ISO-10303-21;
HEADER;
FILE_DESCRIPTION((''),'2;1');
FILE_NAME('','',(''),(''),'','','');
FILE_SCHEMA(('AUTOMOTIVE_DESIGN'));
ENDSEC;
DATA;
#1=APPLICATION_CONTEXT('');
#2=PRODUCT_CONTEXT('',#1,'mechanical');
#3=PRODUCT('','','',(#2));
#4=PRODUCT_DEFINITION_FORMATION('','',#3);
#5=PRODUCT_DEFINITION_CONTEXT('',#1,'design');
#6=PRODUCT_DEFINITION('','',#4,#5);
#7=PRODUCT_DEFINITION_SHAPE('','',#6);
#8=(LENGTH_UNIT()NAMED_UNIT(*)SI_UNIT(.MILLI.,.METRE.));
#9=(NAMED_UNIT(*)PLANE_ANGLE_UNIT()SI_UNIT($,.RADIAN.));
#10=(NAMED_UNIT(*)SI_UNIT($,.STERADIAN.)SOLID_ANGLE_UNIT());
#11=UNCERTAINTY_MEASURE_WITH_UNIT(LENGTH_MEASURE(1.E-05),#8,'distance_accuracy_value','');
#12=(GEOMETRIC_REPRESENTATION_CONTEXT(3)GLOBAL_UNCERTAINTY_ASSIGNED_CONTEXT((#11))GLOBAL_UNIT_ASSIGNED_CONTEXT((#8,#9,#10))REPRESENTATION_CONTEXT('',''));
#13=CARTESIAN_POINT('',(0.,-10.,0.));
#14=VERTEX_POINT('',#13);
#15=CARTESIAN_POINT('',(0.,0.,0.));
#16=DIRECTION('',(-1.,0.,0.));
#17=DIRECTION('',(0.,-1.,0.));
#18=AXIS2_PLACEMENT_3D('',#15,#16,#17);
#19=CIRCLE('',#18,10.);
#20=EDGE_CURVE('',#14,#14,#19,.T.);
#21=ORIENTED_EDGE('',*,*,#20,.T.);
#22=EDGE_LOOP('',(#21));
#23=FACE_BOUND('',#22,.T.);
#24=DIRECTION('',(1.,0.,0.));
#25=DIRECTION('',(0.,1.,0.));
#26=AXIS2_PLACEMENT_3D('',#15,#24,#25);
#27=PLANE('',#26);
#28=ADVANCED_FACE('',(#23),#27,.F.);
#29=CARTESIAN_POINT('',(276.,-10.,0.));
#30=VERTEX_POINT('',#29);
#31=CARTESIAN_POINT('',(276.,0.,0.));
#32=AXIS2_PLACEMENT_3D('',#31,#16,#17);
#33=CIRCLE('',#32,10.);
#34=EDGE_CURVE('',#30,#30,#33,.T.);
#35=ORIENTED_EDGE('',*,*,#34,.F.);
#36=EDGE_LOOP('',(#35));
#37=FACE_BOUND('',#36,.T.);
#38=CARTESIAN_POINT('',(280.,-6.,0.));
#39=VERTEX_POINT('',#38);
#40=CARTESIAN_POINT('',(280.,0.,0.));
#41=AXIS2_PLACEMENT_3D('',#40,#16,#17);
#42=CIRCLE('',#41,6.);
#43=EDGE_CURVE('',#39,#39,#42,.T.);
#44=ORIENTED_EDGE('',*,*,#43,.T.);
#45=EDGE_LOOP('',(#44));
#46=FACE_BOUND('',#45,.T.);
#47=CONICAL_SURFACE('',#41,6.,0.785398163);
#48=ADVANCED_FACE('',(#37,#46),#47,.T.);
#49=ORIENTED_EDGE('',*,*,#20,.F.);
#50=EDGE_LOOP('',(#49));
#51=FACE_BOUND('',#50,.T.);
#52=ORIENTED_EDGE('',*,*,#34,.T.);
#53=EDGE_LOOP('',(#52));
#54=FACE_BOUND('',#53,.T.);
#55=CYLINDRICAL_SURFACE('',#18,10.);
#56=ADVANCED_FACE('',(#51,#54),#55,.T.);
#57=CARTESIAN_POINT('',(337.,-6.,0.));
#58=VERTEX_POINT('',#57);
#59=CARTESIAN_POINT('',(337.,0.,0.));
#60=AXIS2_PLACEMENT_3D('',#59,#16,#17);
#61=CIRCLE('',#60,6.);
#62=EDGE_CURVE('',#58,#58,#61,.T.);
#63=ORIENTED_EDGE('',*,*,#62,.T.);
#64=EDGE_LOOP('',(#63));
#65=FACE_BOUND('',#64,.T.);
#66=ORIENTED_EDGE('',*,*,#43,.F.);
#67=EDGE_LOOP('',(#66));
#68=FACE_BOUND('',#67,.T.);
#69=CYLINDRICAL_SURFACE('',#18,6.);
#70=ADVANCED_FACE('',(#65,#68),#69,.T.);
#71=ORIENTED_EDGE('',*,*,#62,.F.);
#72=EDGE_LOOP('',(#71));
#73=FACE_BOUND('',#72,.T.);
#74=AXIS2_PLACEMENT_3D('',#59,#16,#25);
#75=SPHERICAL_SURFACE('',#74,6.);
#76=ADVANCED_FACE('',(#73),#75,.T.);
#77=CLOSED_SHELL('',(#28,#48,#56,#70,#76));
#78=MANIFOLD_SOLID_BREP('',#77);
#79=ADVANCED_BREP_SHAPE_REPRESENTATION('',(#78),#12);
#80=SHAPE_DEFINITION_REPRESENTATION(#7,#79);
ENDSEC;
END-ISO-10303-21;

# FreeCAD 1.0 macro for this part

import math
import FreeCAD as App
import Part
import Sketcher
from FreeCAD import Vector

doc = App.newDocument("Part")
params = doc.addObject("Spreadsheet::Sheet", "Params")
for row, (alias, value) in enumerate([
    ("sketch1_radius", "6 mm"),
    ("sketch1_width", "343 mm"),
    ("sketch1_width2", "57 mm"),
    ("sketch1_width3", "276 mm"),
    ("sketch1_height", "10 mm"),
    ("revolution_angle", "360 deg"),
], start=1):
    params.set(f"A{row}", alias)
    params.set(f"B{row}", "=" + value)
    params.setAlias(f"B{row}", alias)

body = doc.addObject("PartDesign::Body", "Body")

# Sketch on XY plane
sketch1 = body.newObject("Sketcher::SketchObject", "Sketch")
sketch1.AttachmentSupport = (doc.getObject("XY_Plane"), [""])
sketch1.MapMode = "FlatFace"
sketch1.addGeometry([
    Part.LineSegment(Vector(0, 10, 0), Vector(0, 0, 0)),  # 0
    Part.LineSegment(Vector(0, 0, 0), Vector(343, 0, 0)),  # 1
    Part.ArcOfCircle(Part.Circle(Vector(337, 0, 0), Vector(0, 0, 1), 6), math.radians(0), math.radians(90)),  # 2
    Part.LineSegment(Vector(337, 6, 0), Vector(280, 6, 0)),  # 3
    Part.LineSegment(Vector(280, 6, 0), Vector(276, 10, 0)),  # 4
    Part.LineSegment(Vector(276, 10, 0), Vector(0, 10, 0)),  # 5
], False)
sketch1.addConstraint([
    Sketcher.Constraint("Coincident", 0, 2, 1, 1),
    Sketcher.Constraint("Coincident", 1, 2, 2, 1),
    Sketcher.Constraint("Tangent", 2, 2, 3, 1),
    Sketcher.Constraint("Coincident", 3, 2, 4, 1),
    Sketcher.Constraint("Coincident", 4, 2, 5, 1),
    Sketcher.Constraint("Coincident", 5, 2, 0, 1),
    Sketcher.Constraint("Vertical", 0),
    Sketcher.Constraint("Horizontal", 1),
    Sketcher.Constraint("Horizontal", 3),
    Sketcher.Constraint("Horizontal", 5),
    Sketcher.Constraint("Coincident", 0, 2, -1, 1),
    Sketcher.Constraint("PointOnObject", 2, 3, -1),
    Sketcher.Constraint("Radius", 2, 6.0),
    Sketcher.Constraint("DistanceX", 1, 1, 1, 2, 343.0),
    Sketcher.Constraint("DistanceX", 3, 2, 3, 1, 57.0),
    Sketcher.Constraint("DistanceX", 5, 2, 5, 1, 276.0),
    Sketcher.Constraint("DistanceY", 0, 2, 0, 1, 10.0),
])
sketch1.setExpression("Constraints[12]", "Params.sketch1_radius")
sketch1.setExpression("Constraints[13]", "Params.sketch1_width")
sketch1.setExpression("Constraints[14]", "Params.sketch1_width2")
sketch1.setExpression("Constraints[15]", "Params.sketch1_width3")
sketch1.setExpression("Constraints[16]", "Params.sketch1_height")
revolution = body.newObject("PartDesign::Revolution", "Revolution")
revolution.Profile = sketch1
revolution.ReferenceAxis = (sketch1, ["H_Axis"])
revolution.setExpression("Angle", "Params.revolution_angle")

doc.recompute()
